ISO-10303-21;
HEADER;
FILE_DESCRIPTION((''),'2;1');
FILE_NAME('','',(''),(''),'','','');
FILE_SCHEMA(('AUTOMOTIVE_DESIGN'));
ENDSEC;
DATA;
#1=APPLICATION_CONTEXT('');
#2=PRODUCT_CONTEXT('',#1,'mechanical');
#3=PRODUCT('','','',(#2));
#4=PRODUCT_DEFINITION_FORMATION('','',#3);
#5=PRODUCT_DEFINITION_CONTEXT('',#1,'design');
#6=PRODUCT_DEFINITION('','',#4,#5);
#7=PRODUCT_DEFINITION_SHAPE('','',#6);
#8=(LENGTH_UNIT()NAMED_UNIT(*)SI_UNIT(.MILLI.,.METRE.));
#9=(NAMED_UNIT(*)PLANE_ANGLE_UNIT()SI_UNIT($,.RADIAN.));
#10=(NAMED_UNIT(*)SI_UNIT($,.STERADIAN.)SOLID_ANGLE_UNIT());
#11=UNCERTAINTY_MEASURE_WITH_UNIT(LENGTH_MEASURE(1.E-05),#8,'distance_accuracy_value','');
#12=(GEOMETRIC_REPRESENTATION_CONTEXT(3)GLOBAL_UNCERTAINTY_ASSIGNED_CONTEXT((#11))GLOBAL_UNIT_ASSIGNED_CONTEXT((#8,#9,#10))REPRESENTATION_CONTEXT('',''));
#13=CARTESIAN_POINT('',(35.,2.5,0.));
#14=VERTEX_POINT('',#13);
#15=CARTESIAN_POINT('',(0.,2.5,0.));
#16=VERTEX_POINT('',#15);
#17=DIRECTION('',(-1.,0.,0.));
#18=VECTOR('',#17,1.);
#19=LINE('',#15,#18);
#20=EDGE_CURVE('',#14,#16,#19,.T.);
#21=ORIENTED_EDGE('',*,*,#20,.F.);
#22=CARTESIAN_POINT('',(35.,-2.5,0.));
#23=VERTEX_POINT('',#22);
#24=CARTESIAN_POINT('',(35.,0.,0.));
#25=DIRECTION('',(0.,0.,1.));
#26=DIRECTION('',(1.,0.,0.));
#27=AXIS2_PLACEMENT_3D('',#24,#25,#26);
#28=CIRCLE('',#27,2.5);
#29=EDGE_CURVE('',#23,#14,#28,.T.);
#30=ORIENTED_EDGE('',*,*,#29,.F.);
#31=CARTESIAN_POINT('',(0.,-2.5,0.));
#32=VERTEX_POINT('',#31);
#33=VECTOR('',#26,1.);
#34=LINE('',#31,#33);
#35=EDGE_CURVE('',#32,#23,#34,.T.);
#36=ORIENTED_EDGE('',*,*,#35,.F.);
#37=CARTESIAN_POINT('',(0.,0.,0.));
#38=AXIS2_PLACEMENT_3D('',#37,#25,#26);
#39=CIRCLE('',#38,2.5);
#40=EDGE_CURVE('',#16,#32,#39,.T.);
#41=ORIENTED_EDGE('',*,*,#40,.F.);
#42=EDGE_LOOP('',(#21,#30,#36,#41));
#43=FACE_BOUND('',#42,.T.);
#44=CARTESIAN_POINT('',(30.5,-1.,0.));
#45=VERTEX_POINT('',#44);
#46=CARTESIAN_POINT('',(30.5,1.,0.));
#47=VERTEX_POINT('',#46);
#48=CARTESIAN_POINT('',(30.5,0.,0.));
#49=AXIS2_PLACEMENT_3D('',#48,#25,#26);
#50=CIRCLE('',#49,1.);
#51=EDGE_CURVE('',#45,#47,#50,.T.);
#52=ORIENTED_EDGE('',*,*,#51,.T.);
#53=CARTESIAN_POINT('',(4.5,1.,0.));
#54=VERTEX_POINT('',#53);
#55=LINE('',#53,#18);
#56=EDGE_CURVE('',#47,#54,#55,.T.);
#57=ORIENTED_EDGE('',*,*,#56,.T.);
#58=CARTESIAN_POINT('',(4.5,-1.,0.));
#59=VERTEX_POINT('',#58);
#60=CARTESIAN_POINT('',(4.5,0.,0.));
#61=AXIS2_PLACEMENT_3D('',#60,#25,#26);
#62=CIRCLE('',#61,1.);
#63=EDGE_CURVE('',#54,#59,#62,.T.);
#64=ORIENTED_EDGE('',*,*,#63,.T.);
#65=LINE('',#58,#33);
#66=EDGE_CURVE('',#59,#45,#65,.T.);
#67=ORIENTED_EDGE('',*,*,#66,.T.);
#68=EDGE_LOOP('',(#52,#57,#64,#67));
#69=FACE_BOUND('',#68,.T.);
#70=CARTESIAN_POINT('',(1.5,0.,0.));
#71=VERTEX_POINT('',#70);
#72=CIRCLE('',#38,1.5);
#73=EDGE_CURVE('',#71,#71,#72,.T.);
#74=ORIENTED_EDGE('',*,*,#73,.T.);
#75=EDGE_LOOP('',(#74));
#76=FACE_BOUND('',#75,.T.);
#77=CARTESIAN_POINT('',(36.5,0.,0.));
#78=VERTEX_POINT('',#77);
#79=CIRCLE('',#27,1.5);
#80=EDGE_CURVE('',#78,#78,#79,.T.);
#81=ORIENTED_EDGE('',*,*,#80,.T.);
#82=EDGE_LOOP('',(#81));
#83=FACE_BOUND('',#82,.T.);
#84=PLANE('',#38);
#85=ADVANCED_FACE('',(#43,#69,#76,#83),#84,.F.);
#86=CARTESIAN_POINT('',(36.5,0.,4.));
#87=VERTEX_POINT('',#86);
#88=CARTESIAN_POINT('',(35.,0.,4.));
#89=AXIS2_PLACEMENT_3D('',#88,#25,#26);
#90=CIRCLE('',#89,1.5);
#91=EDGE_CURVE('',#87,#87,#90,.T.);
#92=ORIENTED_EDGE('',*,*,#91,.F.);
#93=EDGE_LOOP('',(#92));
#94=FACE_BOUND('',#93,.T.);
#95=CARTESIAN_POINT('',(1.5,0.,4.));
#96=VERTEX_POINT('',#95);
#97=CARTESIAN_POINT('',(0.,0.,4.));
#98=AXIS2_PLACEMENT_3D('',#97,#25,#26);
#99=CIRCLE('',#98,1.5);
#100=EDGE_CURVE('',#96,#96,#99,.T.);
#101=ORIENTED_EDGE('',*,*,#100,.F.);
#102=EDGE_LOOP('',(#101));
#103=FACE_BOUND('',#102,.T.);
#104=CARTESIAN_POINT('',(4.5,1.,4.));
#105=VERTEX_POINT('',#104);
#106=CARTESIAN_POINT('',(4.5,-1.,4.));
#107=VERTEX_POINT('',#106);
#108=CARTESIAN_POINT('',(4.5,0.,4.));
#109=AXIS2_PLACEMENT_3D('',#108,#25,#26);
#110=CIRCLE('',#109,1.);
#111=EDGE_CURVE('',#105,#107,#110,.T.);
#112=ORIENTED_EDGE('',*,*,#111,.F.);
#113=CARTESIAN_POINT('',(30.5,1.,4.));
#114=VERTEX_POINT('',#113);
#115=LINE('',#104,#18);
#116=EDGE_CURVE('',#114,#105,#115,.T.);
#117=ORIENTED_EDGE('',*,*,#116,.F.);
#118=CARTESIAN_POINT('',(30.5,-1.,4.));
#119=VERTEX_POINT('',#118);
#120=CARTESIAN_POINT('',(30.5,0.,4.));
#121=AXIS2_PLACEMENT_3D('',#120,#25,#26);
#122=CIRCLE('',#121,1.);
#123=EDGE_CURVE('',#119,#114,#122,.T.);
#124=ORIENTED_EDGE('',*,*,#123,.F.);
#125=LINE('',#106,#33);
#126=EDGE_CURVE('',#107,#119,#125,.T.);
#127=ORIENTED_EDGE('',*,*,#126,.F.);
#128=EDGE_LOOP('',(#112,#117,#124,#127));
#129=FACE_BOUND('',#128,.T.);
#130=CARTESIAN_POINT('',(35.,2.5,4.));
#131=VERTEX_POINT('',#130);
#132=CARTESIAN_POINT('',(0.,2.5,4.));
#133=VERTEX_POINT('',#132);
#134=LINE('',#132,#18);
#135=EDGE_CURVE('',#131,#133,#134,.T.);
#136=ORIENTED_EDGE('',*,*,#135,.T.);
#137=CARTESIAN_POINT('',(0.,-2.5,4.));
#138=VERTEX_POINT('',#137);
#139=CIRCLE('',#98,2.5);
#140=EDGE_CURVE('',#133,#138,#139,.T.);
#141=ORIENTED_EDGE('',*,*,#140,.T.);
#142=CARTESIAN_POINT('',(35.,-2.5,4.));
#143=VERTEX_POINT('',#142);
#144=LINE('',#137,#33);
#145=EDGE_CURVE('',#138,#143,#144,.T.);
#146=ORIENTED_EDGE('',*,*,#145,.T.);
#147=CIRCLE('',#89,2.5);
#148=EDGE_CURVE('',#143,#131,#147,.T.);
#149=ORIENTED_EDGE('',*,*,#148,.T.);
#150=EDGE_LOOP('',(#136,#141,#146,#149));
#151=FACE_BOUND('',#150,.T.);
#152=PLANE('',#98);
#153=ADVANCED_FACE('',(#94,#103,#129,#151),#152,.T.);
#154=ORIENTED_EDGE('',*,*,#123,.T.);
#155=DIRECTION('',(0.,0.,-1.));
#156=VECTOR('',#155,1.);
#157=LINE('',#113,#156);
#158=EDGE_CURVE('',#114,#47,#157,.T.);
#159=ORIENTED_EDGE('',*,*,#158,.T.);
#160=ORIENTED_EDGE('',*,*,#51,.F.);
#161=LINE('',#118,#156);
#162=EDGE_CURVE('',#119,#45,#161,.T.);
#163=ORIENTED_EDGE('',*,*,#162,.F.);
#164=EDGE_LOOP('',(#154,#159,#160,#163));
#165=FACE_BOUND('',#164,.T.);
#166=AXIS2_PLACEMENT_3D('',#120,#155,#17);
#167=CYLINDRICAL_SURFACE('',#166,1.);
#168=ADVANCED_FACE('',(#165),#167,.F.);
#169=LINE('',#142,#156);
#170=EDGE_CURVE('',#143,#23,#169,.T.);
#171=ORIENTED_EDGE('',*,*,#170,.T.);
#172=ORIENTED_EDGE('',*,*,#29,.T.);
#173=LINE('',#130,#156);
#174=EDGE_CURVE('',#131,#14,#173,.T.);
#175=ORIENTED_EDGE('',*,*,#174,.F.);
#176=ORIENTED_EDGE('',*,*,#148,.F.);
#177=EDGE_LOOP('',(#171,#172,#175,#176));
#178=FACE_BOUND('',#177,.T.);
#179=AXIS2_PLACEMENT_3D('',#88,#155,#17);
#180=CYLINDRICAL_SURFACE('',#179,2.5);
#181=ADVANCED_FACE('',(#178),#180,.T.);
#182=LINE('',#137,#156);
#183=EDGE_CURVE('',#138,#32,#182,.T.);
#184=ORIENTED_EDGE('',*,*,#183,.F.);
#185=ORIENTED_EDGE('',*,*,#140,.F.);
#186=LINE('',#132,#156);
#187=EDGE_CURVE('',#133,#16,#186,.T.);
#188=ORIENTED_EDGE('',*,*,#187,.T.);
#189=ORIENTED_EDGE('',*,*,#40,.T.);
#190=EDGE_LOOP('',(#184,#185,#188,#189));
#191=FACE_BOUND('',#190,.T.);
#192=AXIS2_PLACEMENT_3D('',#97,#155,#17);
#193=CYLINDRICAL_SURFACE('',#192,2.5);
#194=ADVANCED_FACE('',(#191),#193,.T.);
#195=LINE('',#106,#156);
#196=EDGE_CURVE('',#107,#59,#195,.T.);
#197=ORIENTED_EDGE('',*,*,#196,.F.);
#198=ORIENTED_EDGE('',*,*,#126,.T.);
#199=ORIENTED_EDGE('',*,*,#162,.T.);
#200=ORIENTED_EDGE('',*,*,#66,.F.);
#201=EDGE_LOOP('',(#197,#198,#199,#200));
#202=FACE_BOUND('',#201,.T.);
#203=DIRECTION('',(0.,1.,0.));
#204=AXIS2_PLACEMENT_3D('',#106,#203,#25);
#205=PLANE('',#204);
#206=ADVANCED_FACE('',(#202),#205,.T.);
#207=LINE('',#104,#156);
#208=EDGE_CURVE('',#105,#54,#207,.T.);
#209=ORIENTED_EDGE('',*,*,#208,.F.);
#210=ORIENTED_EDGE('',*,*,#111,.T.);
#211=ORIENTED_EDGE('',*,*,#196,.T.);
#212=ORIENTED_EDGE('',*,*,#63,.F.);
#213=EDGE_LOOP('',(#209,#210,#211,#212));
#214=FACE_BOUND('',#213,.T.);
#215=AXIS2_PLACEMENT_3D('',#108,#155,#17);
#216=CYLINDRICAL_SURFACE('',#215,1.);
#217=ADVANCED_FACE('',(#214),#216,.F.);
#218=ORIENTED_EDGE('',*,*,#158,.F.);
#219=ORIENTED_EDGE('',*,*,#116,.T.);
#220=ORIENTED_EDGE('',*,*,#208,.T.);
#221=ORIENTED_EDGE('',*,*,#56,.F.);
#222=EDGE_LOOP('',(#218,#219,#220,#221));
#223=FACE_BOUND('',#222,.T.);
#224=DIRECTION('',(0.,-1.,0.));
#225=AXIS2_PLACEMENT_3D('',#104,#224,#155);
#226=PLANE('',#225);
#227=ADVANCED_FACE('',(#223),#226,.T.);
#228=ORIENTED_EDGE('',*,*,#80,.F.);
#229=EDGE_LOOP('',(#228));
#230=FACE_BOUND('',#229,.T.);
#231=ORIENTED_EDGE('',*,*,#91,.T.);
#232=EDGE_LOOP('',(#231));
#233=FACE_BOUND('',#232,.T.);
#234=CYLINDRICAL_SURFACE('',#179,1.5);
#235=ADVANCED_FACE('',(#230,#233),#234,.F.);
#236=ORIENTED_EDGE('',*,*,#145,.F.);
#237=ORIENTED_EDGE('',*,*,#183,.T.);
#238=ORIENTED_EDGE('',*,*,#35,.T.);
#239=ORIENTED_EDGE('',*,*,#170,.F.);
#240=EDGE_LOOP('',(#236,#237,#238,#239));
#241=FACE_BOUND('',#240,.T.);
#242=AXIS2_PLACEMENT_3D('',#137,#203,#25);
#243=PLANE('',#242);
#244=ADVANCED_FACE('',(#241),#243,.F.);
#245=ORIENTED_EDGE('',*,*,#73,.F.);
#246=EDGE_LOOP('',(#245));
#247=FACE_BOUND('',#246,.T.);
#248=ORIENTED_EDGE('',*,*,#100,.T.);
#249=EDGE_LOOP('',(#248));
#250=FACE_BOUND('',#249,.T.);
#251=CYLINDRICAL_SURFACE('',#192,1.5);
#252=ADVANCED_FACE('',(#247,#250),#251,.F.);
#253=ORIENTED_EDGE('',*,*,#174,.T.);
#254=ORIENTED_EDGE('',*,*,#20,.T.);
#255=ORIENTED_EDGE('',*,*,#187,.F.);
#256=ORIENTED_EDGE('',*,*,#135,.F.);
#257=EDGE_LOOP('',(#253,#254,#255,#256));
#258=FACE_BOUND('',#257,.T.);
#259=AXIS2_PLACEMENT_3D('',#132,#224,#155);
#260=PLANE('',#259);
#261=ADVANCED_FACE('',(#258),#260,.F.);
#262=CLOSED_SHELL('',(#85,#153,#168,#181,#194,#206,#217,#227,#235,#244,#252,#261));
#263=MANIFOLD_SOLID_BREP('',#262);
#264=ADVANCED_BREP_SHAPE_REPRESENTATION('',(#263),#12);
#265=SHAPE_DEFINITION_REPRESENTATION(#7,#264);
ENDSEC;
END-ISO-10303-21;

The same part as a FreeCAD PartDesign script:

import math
import FreeCAD as App
import Part
import Sketcher

V = App.Vector
Q = App.Units.Quantity

doc = App.newDocument("Part")
body = doc.addObject("PartDesign::Body", "Body")

sketch1 = body.newObject("Sketcher::SketchObject", "Sketch")
sketch1.AttachmentSupport = (doc.getObject("XY_Plane"), [""])
sketch1.MapMode = "FlatFace"
sketch1.addGeometry([
    Part.LineSegment(V(35, 2.5, 0), V(0, 2.5, 0)),
    Part.ArcOfCircle(Part.Circle(V(0, 0, 0), V(0, 0, 1), 2.5), math.radians(90), math.radians(270)),
    Part.LineSegment(V(0, -2.5, 0), V(35, -2.5, 0)),
    Part.ArcOfCircle(Part.Circle(V(35, 0, 0), V(0, 0, 1), 2.5), math.radians(-90), math.radians(90)),
    Part.Circle(V(35, 0, 0), V(0, 0, 1), 1.5),
    Part.LineSegment(V(4.5, 1, 0), V(30.5, 1, 0)),
    Part.ArcOfCircle(Part.Circle(V(30.5, 0, 0), V(0, 0, 1), 1), math.radians(-90), math.radians(90)),
    Part.LineSegment(V(30.5, -1, 0), V(4.5, -1, 0)),
    Part.ArcOfCircle(Part.Circle(V(4.5, 0, 0), V(0, 0, 1), 1), math.radians(90), math.radians(270)),
    Part.Circle(V(0, 0, 0), V(0, 0, 1), 1.5),
], False)
sketch1.addConstraint([
    Sketcher.Constraint("Tangent", 0, 2, 1, 1),
    Sketcher.Constraint("Tangent", 1, 2, 2, 1),
    Sketcher.Constraint("Tangent", 2, 2, 3, 1),
    Sketcher.Constraint("Tangent", 3, 2, 0, 1),
    Sketcher.Constraint("Tangent", 5, 2, 6, 2),
    Sketcher.Constraint("Tangent", 6, 1, 7, 1),
    Sketcher.Constraint("Tangent", 7, 2, 8, 2),
    Sketcher.Constraint("Tangent", 8, 1, 5, 1),
    Sketcher.Constraint("Horizontal", 0),
    Sketcher.Constraint("Horizontal", 2),
    Sketcher.Constraint("Horizontal", 5),
    Sketcher.Constraint("Horizontal", 7),
    Sketcher.Constraint("Coincident", 1, 3, -1, 1),
    Sketcher.Constraint("Coincident", 9, 3, -1, 1),
    Sketcher.Constraint("Coincident", 4, 3, 3, 3),
    Sketcher.Constraint("Equal", 4, 9),
    Sketcher.Constraint("PointOnObject", 6, 3, -1),
    Sketcher.Constraint("Diameter", 4, Q("3 mm")),
    Sketcher.Constraint("Radius", 6, Q("1 mm")),
    Sketcher.Constraint("Radius", 1, Q("2.5 mm")),
    Sketcher.Constraint("DistanceX", 0, 2, 0, 1, Q("35 mm")),
    Sketcher.Constraint("DistanceX", 5, 1, 5, 2, Q("26 mm")),
    Sketcher.Constraint("DistanceX", -1, 1, 6, 3, Q("30.5 mm")),
])
pad1 = body.newObject("PartDesign::Pad", "Pad")
pad1.Profile = sketch1
pad1.Length = 4

doc.recompute()
